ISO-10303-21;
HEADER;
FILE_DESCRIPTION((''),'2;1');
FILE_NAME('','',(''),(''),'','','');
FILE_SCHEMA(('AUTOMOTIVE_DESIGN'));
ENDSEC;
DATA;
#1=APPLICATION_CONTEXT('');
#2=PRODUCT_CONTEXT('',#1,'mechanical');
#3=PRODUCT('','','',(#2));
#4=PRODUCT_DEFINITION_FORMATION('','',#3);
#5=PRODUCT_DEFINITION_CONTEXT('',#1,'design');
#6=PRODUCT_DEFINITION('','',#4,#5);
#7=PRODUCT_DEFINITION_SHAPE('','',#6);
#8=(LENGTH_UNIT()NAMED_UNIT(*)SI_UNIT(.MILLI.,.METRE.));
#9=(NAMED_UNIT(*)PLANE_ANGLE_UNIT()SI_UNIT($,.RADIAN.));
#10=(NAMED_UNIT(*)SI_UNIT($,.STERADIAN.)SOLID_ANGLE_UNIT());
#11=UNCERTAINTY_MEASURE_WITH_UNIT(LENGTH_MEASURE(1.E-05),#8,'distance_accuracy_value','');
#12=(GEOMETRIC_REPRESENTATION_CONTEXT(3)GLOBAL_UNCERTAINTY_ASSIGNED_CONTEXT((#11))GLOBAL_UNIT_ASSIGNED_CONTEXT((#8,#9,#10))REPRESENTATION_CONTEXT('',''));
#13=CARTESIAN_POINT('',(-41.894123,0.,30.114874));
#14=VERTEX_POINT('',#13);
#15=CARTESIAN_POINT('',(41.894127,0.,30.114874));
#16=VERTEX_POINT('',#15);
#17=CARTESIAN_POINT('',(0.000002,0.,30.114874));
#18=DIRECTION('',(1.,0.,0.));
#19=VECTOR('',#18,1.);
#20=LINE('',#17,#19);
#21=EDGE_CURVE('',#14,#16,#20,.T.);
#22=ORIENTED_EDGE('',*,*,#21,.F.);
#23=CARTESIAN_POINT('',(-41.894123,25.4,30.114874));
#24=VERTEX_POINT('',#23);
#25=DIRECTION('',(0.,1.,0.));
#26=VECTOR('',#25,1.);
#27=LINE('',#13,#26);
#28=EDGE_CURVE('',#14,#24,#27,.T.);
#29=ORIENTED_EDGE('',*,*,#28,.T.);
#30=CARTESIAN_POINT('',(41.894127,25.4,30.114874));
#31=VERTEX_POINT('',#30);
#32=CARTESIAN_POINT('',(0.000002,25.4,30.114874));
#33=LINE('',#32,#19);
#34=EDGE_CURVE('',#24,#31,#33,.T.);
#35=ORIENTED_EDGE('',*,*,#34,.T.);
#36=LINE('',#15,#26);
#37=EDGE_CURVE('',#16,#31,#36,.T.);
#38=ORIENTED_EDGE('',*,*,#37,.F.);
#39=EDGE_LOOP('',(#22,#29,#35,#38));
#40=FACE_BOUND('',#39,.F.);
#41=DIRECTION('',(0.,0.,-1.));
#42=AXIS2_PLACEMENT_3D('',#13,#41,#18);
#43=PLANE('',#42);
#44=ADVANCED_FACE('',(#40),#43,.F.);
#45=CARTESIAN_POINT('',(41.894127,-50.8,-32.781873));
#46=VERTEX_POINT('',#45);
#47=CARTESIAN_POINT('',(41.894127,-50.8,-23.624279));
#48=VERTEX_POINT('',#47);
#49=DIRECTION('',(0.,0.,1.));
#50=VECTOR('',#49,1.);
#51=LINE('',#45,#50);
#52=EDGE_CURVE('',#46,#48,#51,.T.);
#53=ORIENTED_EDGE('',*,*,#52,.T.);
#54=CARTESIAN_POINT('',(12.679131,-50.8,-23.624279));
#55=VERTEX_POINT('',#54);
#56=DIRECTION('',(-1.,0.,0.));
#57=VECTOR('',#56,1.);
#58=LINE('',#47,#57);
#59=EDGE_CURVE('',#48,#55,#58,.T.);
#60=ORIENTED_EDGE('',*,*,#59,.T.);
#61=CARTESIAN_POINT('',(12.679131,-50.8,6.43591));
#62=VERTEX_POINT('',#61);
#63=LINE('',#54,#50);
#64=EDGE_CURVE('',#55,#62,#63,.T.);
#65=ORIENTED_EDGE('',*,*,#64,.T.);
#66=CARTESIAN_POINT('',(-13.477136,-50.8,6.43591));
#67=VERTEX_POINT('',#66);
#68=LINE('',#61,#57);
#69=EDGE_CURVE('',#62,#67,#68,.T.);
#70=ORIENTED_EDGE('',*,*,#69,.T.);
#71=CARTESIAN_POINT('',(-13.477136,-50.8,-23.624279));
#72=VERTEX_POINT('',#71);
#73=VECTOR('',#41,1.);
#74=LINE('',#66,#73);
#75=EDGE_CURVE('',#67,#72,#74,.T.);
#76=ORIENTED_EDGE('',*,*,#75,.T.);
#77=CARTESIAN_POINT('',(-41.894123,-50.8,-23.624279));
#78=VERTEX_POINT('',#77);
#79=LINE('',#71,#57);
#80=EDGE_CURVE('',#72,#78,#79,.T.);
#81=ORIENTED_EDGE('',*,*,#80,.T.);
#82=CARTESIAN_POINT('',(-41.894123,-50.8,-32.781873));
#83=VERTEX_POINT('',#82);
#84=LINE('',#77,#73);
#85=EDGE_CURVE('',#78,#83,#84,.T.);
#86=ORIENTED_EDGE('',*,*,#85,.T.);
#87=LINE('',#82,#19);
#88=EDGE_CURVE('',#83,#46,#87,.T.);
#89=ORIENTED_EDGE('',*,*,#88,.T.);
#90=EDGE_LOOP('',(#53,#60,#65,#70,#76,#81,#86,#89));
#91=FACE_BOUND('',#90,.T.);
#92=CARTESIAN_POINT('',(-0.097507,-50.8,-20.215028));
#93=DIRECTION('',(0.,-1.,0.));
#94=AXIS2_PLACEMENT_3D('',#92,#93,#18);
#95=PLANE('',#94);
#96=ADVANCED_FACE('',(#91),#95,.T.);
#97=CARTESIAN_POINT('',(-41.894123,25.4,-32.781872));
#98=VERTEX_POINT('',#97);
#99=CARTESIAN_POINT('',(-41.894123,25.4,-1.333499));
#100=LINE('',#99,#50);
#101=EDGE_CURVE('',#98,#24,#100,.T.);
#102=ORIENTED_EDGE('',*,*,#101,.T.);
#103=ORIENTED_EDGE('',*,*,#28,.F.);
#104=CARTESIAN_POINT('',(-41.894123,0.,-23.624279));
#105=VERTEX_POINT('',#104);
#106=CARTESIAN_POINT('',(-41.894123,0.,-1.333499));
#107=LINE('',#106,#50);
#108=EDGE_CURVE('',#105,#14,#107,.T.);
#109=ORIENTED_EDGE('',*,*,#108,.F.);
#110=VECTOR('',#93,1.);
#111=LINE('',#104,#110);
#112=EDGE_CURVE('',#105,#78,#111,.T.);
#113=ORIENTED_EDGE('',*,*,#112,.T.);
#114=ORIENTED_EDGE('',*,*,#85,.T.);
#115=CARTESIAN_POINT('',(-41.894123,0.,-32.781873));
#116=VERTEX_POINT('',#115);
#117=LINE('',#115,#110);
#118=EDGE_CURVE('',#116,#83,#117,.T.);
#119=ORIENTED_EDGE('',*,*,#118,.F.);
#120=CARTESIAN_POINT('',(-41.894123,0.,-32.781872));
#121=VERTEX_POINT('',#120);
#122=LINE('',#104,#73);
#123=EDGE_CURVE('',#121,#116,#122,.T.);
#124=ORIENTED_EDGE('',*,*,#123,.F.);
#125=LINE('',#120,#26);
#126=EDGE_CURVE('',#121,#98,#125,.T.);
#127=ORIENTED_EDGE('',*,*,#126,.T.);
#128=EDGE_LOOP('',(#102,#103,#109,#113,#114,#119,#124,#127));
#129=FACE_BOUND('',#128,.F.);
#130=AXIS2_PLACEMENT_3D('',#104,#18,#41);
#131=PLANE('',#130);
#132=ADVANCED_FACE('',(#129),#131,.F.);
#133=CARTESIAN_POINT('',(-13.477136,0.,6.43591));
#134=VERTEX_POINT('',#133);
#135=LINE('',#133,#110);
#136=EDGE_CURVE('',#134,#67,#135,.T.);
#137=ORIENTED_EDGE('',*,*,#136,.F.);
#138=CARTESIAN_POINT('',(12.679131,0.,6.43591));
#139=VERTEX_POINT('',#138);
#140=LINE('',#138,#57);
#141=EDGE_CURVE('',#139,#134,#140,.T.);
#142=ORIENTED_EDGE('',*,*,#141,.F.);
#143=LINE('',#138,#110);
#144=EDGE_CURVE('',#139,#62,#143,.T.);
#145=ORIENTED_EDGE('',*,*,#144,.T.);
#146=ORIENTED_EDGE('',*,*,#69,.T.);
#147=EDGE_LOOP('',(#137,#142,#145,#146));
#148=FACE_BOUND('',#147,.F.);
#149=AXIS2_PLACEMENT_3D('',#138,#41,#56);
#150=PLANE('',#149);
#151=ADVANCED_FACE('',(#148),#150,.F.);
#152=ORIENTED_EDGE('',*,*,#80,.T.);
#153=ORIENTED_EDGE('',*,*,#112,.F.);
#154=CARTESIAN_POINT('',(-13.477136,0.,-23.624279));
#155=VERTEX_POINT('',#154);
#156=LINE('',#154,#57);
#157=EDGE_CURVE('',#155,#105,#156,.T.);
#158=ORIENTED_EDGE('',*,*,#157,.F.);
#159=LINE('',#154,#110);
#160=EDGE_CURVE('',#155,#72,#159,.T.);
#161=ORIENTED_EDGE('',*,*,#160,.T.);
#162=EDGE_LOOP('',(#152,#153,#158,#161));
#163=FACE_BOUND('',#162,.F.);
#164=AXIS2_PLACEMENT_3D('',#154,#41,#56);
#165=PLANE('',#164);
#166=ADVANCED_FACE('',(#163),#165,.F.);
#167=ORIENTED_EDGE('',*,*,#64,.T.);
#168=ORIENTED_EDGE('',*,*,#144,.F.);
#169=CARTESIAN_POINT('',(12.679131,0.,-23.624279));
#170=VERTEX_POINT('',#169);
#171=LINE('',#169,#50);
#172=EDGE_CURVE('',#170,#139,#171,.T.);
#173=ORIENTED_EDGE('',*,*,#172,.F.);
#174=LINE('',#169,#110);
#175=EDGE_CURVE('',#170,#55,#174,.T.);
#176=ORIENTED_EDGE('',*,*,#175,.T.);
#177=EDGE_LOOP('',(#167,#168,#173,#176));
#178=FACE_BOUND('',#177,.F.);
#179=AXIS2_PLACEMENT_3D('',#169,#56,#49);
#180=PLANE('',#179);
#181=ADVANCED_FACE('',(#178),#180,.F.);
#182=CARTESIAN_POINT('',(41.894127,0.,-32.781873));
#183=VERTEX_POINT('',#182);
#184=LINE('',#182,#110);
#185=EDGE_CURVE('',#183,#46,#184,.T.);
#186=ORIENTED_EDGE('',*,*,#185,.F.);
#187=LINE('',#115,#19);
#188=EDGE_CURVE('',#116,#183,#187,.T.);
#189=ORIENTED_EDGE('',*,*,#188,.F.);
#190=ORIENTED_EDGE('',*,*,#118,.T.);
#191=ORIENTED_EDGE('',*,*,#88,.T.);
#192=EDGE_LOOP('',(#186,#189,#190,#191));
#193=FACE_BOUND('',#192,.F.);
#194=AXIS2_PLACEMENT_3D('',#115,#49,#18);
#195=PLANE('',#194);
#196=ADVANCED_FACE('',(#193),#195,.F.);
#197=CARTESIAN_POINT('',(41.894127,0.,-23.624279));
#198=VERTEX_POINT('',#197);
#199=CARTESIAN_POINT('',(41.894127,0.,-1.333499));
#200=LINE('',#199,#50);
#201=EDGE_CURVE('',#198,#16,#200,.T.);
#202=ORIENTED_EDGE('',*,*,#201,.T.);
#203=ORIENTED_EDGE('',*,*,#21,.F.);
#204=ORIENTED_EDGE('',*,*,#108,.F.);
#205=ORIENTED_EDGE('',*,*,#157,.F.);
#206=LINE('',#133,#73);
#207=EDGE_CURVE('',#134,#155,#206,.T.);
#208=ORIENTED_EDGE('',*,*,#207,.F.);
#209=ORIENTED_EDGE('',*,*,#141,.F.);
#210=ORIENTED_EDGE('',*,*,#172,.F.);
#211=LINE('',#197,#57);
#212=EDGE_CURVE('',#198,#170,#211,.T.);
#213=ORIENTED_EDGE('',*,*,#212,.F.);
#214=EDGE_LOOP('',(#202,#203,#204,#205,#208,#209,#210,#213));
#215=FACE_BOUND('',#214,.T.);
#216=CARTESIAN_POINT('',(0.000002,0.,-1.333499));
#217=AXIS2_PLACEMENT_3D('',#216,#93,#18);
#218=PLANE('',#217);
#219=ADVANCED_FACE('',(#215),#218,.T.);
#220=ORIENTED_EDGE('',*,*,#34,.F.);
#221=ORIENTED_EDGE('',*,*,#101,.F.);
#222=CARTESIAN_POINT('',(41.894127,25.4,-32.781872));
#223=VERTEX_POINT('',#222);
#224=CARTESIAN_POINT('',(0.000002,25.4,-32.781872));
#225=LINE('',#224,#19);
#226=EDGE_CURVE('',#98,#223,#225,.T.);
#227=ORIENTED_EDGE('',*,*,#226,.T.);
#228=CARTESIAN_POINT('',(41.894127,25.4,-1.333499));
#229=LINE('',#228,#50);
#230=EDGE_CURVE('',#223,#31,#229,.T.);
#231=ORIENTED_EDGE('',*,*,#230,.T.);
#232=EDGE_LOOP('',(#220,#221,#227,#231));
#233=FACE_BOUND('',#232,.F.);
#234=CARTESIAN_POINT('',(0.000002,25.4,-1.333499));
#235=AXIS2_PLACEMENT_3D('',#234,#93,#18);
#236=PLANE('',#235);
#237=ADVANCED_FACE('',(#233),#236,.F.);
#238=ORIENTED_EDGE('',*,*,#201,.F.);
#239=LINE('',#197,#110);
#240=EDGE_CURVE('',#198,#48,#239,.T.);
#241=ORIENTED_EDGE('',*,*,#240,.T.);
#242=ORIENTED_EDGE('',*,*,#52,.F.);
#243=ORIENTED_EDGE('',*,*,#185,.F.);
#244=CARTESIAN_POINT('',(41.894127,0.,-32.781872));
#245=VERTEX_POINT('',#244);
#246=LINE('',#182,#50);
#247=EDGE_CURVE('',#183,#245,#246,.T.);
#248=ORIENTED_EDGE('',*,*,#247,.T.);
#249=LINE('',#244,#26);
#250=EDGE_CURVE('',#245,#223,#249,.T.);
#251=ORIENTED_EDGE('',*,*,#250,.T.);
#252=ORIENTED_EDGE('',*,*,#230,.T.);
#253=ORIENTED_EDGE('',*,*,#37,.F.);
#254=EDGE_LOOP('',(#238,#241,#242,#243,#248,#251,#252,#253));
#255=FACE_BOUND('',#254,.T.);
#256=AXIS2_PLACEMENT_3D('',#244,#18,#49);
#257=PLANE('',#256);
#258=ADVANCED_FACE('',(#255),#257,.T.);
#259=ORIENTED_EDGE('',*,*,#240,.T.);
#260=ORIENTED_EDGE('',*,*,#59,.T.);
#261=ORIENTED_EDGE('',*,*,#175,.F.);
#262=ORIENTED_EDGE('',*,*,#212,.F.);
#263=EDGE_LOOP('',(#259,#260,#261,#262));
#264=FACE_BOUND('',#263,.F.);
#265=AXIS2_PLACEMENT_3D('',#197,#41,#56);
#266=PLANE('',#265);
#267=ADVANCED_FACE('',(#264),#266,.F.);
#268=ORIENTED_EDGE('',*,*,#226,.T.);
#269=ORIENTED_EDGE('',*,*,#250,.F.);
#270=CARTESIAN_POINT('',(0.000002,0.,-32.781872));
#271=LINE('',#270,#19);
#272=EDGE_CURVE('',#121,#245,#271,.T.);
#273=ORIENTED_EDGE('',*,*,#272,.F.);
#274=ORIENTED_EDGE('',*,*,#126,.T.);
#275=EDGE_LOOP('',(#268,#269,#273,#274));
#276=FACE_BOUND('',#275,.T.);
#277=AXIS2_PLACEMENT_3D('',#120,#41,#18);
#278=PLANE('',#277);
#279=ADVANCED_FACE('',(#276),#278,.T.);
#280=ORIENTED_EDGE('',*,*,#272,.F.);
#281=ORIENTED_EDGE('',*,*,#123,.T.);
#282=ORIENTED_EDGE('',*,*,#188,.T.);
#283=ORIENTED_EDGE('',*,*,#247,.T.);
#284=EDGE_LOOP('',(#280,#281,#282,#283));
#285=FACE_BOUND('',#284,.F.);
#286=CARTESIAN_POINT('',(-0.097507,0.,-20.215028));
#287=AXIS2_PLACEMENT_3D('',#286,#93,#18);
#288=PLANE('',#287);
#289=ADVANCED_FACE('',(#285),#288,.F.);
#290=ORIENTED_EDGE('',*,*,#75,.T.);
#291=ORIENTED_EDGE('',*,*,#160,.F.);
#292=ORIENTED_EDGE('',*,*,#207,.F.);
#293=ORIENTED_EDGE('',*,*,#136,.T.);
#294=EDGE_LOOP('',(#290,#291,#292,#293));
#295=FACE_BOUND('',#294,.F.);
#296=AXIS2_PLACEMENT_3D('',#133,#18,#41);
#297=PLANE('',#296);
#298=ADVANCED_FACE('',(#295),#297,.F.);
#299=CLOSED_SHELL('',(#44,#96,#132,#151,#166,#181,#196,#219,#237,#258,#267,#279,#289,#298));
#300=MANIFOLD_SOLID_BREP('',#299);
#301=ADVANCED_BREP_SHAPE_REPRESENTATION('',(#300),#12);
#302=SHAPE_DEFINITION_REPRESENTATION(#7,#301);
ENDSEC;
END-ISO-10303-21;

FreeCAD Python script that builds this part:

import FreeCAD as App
import Part
import Sketcher
from FreeCAD import Vector
Q = App.Units.Quantity

doc = App.newDocument("Part")
body = doc.addObject("PartDesign::Body", "Body")

# Sketch on XZ plane
sketch1 = doc.addObject("Sketcher::SketchObject", "Sketch")
body.addObject(sketch1)
sketch1.AttachmentSupport = (doc.XZ_Plane, [""])
sketch1.MapMode = "FlatFace"
sketch1.addGeometry([
    Part.LineSegment(Vector(-41.894123, 30.114874, 0), Vector(-41.894123, -32.781872, 0)),
    Part.LineSegment(Vector(-41.894123, -32.781872, 0), Vector(41.894127, -32.781872, 0)),
    Part.LineSegment(Vector(41.894127, -32.781872, 0), Vector(41.894127, 30.114874, 0)),
    Part.LineSegment(Vector(41.894127, 30.114874, 0), Vector(-41.894123, 30.114874, 0)),
], False)
sketch1.addConstraint([
    Sketcher.Constraint("Coincident", 0, 2, 1, 1),
    Sketcher.Constraint("Coincident", 1, 2, 2, 1),
    Sketcher.Constraint("Coincident", 2, 2, 3, 1),
    Sketcher.Constraint("Coincident", 3, 2, 0, 1),
    Sketcher.Constraint("Vertical", 0),
    Sketcher.Constraint("Horizontal", 1),
    Sketcher.Constraint("Vertical", 2),
    Sketcher.Constraint("Horizontal", 3),
    Sketcher.Constraint("DistanceX", 1, 1, 1, 2, Q("83.78825 mm")),
    Sketcher.Constraint("DistanceY", 0, 2, 0, 1, Q("62.896747 mm")),
    Sketcher.Constraint("DistanceX", 0, 2, -1, 1, Q("41.894123 mm")),
    Sketcher.Constraint("DistanceY", 0, 2, -1, 1, Q("32.781872 mm")),
])
pad1 = doc.addObject("PartDesign::Pad", "Pad")
body.addObject(pad1)
pad1.Profile = sketch1
pad1.Length = Q("1 in")
pad1.Reversed = True

# Sketch on XZ plane
sketch2 = doc.addObject("Sketcher::SketchObject", "Sketch001")
body.addObject(sketch2)
sketch2.AttachmentSupport = (doc.XZ_Plane, [""])
sketch2.MapMode = "FlatFace"
sketch2.addGeometry([
    Part.LineSegment(Vector(-13.477136, -23.624279, 0), Vector(-41.894123, -23.624279, 0)),  # 0
    Part.LineSegment(Vector(-41.894123, -23.624279, 0), Vector(-41.894123, -32.781873, 0)),  # 1
    Part.LineSegment(Vector(-41.894123, -32.781873, 0), Vector(41.894127, -32.781873, 0)),  # 2
    Part.LineSegment(Vector(41.894127, -32.781873, 0), Vector(41.894127, -23.624279, 0)),  # 3
    Part.LineSegment(Vector(41.894127, -23.624279, 0), Vector(12.679131, -23.624279, 0)),  # 4
    Part.LineSegment(Vector(12.679131, -23.624279, 0), Vector(12.679131, 6.43591, 0)),  # 5
    Part.LineSegment(Vector(12.679131, 6.43591, 0), Vector(-13.477136, 6.43591, 0)),  # 6
    Part.LineSegment(Vector(-13.477136, 6.43591, 0), Vector(-13.477136, -23.624279, 0)),  # 7
], False)
sketch2.addConstraint([
    Sketcher.Constraint("Coincident", 0, 2, 1, 1),
    Sketcher.Constraint("Coincident", 1, 2, 2, 1),
    Sketcher.Constraint("Coincident", 2, 2, 3, 1),
    Sketcher.Constraint("Coincident", 3, 2, 4, 1),
    Sketcher.Constraint("Coincident", 4, 2, 5, 1),
    Sketcher.Constraint("Coincident", 5, 2, 6, 1),
    Sketcher.Constraint("Coincident", 6, 2, 7, 1),
    Sketcher.Constraint("Coincident", 7, 2, 0, 1),
    Sketcher.Constraint("Horizontal", 0),
    Sketcher.Constraint("Vertical", 1),
    Sketcher.Constraint("Horizontal", 2),
    Sketcher.Constraint("Vertical", 3),
    Sketcher.Constraint("Horizontal", 4),
    Sketcher.Constraint("Vertical", 5),
    Sketcher.Constraint("Horizontal", 6),
    Sketcher.Constraint("Vertical", 7),
    Sketcher.Constraint("Symmetric", 0, 2, 3, 2, -2),
    Sketcher.Constraint("DistanceX", 2, 1, 2, 2, Q("83.78825 mm")),
    Sketcher.Constraint("DistanceY", 5, 1, 5, 2, Q("30.060189 mm")),
    Sketcher.Constraint("DistanceX", 0, 2, 0, 1, Q("28.416987 mm")),
    Sketcher.Constraint("DistanceX", 4, 2, 4, 1, Q("29.214996 mm")),
    Sketcher.Constraint("DistanceY", 1, 2, 1, 1, Q("9.157594 mm")),
    Sketcher.Constraint("DistanceY", 0, 2, -1, 1, Q("23.624279 mm")),
])
pad2 = doc.addObject("PartDesign::Pad", "Pad001")
body.addObject(pad2)
pad2.Profile = sketch2
pad2.Length = Q("2 in")

doc.recompute()
